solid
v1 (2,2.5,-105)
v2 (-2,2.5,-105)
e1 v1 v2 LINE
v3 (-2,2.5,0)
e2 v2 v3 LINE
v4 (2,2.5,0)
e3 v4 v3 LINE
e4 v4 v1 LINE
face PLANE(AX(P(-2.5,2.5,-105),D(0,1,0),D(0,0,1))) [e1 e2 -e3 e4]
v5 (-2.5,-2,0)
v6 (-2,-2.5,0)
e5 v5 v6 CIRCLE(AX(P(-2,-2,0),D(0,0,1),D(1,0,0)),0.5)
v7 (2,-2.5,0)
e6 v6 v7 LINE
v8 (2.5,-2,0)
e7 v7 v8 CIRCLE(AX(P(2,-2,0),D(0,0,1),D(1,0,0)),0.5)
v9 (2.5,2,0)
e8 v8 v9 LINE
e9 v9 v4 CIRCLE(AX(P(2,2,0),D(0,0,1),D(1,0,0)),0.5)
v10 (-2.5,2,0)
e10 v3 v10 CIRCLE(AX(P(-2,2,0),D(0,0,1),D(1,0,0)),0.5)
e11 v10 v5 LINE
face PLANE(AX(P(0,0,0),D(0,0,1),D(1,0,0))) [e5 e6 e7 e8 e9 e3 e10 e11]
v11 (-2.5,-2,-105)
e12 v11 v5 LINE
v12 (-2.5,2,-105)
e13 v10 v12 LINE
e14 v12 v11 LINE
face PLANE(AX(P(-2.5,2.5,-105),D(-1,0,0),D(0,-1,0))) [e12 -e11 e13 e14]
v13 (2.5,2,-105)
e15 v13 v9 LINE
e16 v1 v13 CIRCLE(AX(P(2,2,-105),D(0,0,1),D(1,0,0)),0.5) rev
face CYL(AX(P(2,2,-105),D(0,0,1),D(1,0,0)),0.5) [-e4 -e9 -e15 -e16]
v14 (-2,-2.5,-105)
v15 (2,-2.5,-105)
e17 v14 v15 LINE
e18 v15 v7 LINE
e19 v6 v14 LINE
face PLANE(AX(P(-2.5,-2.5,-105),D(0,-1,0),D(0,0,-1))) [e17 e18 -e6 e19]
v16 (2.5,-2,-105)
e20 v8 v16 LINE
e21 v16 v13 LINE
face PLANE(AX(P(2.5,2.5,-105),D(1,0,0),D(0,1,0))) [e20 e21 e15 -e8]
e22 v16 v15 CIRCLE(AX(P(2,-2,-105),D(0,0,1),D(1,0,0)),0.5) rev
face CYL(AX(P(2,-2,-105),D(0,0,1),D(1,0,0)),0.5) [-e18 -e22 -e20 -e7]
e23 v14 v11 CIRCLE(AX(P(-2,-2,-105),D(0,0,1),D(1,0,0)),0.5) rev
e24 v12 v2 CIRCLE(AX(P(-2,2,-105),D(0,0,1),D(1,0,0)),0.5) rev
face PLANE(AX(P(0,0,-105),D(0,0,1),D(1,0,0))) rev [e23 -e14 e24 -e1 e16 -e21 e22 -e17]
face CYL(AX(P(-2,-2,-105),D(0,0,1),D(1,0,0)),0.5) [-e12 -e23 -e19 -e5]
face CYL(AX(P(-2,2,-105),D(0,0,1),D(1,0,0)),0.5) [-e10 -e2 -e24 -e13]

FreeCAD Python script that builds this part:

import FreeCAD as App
import Part
import Sketcher


def edges_at(feature, points):
    """Names of the edges that pass closest to the given points."""
    edges = feature.Shape.Edges
    near = lambda p: min(range(len(edges)), key=lambda i: edges[i].distToShape(Part.Vertex(*p))[0])
    return sorted({f"Edge{near(p) + 1}" for p in points})

doc = App.newDocument("Part")
body = doc.addObject("PartDesign::Body", "Body")

sketch1 = body.newObject("Sketcher::SketchObject", "Sketch")
sketch1.AttachmentSupport = (doc.getObject("XY_Plane"), [""])
sketch1.MapMode = "FlatFace"
sketch1.addGeometry(Part.LineSegment(App.Vector(-2, 2, 0), App.Vector(-2, -2, 0)), False)
sketch1.addGeometry(Part.LineSegment(App.Vector(-2, -2, 0), App.Vector(2, -2, 0)), False)
sketch1.addGeometry(Part.LineSegment(App.Vector(2, -2, 0), App.Vector(2, 2, 0)), False)
sketch1.addGeometry(Part.LineSegment(App.Vector(2, 2, 0), App.Vector(-2, 2, 0)), False)
sketch1.addConstraint(Sketcher.Constraint("Coincident", 0, 2, 1, 1))
sketch1.addConstraint(Sketcher.Constraint("Coincident", 1, 2, 2, 1))
sketch1.addConstraint(Sketcher.Constraint("Coincident", 2, 2, 3, 1))
sketch1.addConstraint(Sketcher.Constraint("Coincident", 3, 2, 0, 1))
sketch1.addConstraint(Sketcher.Constraint("Vertical", 0))
sketch1.addConstraint(Sketcher.Constraint("Horizontal", 1))
sketch1.addConstraint(Sketcher.Constraint("Vertical", 2))
sketch1.addConstraint(Sketcher.Constraint("Horizontal", 3))
sketch1.addConstraint(Sketcher.Constraint("Symmetric", 0, 2, 2, 2, -1, 1))
sketch1.addConstraint(Sketcher.Constraint("Equal", 3, 0))
sketch1.addConstraint(Sketcher.Constraint("DistanceX", 1, 1, 1, 2, 5.0))
pad1 = body.newObject("PartDesign::Pad", "Pad")
pad1.Profile = sketch1
pad1.Length = 105
pad1.Reversed = True
doc.recompute()

fillet = body.newObject("PartDesign::Fillet", "Fillet")
fillet.Base = (pad1, edges_at(pad1, [
    (2.5, -2.5, -52.5),
    (-2.5, -2.5, -52.5),
    (-2.5, 2.5, -52.5),
    (2.5, 2.5, -52.5),
]))
fillet.Radius = 0.5

doc.recompute()
